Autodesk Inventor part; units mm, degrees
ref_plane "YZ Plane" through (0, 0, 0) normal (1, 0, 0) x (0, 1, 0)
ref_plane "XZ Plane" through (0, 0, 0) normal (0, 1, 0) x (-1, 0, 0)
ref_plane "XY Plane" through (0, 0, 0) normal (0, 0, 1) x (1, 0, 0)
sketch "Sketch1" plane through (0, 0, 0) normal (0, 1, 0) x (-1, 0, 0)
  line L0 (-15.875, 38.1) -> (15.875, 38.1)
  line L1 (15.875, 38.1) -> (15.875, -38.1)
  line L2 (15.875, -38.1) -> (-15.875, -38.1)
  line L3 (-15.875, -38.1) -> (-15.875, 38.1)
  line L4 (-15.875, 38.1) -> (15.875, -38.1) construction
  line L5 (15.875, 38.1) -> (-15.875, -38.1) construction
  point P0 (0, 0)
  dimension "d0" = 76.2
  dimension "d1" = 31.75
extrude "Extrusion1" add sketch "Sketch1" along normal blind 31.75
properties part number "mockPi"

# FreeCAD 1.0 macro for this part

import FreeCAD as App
import Part
import Sketcher
Q = App.Units.Quantity

doc = App.newDocument("Part")
body = doc.addObject("PartDesign::Body", "Body")

sketch1 = body.newObject("Sketcher::SketchObject", "Sketch")
sketch1.AttachmentSupport = (doc.getObject("XZ_Plane"), [""])
sketch1.MapMode = "FlatFace"
sketch1.addGeometry(Part.LineSegment(App.Vector(-16, 38, 0), App.Vector(16, 38, 0)), False)
sketch1.addGeometry(Part.LineSegment(App.Vector(16, 38, 0), App.Vector(16, -38, 0)), False)
sketch1.addGeometry(Part.LineSegment(App.Vector(16, -38, 0), App.Vector(-16, -38, 0)), False)
sketch1.addGeometry(Part.LineSegment(App.Vector(-16, -38, 0), App.Vector(-16, 38, 0)), False)
sketch1.addConstraint(Sketcher.Constraint("Coincident", 0, 2, 1, 1))
sketch1.addConstraint(Sketcher.Constraint("Coincident", 1, 2, 2, 1))
sketch1.addConstraint(Sketcher.Constraint("Coincident", 2, 2, 3, 1))
sketch1.addConstraint(Sketcher.Constraint("Coincident", 3, 2, 0, 1))
sketch1.addConstraint(Sketcher.Constraint("Horizontal", 0))
sketch1.addConstraint(Sketcher.Constraint("Vertical", 1))
sketch1.addConstraint(Sketcher.Constraint("Horizontal", 2))
sketch1.addConstraint(Sketcher.Constraint("Vertical", 3))
sketch1.addConstraint(Sketcher.Constraint("Symmetric", 0, 2, 2, 2, -1, 1))
sketch1.addConstraint(Sketcher.Constraint("DistanceY", 1, 2, 1, 1, Q("3 in")))
sketch1.addConstraint(Sketcher.Constraint("DistanceX", 0, 1, 0, 2, Q("1.25 in")))
pad1 = body.newObject("PartDesign::Pad", "Pad")
pad1.Profile = sketch1
pad1.Length = Q("1.25 in")
pad1.Reversed = True

doc.recompute()
